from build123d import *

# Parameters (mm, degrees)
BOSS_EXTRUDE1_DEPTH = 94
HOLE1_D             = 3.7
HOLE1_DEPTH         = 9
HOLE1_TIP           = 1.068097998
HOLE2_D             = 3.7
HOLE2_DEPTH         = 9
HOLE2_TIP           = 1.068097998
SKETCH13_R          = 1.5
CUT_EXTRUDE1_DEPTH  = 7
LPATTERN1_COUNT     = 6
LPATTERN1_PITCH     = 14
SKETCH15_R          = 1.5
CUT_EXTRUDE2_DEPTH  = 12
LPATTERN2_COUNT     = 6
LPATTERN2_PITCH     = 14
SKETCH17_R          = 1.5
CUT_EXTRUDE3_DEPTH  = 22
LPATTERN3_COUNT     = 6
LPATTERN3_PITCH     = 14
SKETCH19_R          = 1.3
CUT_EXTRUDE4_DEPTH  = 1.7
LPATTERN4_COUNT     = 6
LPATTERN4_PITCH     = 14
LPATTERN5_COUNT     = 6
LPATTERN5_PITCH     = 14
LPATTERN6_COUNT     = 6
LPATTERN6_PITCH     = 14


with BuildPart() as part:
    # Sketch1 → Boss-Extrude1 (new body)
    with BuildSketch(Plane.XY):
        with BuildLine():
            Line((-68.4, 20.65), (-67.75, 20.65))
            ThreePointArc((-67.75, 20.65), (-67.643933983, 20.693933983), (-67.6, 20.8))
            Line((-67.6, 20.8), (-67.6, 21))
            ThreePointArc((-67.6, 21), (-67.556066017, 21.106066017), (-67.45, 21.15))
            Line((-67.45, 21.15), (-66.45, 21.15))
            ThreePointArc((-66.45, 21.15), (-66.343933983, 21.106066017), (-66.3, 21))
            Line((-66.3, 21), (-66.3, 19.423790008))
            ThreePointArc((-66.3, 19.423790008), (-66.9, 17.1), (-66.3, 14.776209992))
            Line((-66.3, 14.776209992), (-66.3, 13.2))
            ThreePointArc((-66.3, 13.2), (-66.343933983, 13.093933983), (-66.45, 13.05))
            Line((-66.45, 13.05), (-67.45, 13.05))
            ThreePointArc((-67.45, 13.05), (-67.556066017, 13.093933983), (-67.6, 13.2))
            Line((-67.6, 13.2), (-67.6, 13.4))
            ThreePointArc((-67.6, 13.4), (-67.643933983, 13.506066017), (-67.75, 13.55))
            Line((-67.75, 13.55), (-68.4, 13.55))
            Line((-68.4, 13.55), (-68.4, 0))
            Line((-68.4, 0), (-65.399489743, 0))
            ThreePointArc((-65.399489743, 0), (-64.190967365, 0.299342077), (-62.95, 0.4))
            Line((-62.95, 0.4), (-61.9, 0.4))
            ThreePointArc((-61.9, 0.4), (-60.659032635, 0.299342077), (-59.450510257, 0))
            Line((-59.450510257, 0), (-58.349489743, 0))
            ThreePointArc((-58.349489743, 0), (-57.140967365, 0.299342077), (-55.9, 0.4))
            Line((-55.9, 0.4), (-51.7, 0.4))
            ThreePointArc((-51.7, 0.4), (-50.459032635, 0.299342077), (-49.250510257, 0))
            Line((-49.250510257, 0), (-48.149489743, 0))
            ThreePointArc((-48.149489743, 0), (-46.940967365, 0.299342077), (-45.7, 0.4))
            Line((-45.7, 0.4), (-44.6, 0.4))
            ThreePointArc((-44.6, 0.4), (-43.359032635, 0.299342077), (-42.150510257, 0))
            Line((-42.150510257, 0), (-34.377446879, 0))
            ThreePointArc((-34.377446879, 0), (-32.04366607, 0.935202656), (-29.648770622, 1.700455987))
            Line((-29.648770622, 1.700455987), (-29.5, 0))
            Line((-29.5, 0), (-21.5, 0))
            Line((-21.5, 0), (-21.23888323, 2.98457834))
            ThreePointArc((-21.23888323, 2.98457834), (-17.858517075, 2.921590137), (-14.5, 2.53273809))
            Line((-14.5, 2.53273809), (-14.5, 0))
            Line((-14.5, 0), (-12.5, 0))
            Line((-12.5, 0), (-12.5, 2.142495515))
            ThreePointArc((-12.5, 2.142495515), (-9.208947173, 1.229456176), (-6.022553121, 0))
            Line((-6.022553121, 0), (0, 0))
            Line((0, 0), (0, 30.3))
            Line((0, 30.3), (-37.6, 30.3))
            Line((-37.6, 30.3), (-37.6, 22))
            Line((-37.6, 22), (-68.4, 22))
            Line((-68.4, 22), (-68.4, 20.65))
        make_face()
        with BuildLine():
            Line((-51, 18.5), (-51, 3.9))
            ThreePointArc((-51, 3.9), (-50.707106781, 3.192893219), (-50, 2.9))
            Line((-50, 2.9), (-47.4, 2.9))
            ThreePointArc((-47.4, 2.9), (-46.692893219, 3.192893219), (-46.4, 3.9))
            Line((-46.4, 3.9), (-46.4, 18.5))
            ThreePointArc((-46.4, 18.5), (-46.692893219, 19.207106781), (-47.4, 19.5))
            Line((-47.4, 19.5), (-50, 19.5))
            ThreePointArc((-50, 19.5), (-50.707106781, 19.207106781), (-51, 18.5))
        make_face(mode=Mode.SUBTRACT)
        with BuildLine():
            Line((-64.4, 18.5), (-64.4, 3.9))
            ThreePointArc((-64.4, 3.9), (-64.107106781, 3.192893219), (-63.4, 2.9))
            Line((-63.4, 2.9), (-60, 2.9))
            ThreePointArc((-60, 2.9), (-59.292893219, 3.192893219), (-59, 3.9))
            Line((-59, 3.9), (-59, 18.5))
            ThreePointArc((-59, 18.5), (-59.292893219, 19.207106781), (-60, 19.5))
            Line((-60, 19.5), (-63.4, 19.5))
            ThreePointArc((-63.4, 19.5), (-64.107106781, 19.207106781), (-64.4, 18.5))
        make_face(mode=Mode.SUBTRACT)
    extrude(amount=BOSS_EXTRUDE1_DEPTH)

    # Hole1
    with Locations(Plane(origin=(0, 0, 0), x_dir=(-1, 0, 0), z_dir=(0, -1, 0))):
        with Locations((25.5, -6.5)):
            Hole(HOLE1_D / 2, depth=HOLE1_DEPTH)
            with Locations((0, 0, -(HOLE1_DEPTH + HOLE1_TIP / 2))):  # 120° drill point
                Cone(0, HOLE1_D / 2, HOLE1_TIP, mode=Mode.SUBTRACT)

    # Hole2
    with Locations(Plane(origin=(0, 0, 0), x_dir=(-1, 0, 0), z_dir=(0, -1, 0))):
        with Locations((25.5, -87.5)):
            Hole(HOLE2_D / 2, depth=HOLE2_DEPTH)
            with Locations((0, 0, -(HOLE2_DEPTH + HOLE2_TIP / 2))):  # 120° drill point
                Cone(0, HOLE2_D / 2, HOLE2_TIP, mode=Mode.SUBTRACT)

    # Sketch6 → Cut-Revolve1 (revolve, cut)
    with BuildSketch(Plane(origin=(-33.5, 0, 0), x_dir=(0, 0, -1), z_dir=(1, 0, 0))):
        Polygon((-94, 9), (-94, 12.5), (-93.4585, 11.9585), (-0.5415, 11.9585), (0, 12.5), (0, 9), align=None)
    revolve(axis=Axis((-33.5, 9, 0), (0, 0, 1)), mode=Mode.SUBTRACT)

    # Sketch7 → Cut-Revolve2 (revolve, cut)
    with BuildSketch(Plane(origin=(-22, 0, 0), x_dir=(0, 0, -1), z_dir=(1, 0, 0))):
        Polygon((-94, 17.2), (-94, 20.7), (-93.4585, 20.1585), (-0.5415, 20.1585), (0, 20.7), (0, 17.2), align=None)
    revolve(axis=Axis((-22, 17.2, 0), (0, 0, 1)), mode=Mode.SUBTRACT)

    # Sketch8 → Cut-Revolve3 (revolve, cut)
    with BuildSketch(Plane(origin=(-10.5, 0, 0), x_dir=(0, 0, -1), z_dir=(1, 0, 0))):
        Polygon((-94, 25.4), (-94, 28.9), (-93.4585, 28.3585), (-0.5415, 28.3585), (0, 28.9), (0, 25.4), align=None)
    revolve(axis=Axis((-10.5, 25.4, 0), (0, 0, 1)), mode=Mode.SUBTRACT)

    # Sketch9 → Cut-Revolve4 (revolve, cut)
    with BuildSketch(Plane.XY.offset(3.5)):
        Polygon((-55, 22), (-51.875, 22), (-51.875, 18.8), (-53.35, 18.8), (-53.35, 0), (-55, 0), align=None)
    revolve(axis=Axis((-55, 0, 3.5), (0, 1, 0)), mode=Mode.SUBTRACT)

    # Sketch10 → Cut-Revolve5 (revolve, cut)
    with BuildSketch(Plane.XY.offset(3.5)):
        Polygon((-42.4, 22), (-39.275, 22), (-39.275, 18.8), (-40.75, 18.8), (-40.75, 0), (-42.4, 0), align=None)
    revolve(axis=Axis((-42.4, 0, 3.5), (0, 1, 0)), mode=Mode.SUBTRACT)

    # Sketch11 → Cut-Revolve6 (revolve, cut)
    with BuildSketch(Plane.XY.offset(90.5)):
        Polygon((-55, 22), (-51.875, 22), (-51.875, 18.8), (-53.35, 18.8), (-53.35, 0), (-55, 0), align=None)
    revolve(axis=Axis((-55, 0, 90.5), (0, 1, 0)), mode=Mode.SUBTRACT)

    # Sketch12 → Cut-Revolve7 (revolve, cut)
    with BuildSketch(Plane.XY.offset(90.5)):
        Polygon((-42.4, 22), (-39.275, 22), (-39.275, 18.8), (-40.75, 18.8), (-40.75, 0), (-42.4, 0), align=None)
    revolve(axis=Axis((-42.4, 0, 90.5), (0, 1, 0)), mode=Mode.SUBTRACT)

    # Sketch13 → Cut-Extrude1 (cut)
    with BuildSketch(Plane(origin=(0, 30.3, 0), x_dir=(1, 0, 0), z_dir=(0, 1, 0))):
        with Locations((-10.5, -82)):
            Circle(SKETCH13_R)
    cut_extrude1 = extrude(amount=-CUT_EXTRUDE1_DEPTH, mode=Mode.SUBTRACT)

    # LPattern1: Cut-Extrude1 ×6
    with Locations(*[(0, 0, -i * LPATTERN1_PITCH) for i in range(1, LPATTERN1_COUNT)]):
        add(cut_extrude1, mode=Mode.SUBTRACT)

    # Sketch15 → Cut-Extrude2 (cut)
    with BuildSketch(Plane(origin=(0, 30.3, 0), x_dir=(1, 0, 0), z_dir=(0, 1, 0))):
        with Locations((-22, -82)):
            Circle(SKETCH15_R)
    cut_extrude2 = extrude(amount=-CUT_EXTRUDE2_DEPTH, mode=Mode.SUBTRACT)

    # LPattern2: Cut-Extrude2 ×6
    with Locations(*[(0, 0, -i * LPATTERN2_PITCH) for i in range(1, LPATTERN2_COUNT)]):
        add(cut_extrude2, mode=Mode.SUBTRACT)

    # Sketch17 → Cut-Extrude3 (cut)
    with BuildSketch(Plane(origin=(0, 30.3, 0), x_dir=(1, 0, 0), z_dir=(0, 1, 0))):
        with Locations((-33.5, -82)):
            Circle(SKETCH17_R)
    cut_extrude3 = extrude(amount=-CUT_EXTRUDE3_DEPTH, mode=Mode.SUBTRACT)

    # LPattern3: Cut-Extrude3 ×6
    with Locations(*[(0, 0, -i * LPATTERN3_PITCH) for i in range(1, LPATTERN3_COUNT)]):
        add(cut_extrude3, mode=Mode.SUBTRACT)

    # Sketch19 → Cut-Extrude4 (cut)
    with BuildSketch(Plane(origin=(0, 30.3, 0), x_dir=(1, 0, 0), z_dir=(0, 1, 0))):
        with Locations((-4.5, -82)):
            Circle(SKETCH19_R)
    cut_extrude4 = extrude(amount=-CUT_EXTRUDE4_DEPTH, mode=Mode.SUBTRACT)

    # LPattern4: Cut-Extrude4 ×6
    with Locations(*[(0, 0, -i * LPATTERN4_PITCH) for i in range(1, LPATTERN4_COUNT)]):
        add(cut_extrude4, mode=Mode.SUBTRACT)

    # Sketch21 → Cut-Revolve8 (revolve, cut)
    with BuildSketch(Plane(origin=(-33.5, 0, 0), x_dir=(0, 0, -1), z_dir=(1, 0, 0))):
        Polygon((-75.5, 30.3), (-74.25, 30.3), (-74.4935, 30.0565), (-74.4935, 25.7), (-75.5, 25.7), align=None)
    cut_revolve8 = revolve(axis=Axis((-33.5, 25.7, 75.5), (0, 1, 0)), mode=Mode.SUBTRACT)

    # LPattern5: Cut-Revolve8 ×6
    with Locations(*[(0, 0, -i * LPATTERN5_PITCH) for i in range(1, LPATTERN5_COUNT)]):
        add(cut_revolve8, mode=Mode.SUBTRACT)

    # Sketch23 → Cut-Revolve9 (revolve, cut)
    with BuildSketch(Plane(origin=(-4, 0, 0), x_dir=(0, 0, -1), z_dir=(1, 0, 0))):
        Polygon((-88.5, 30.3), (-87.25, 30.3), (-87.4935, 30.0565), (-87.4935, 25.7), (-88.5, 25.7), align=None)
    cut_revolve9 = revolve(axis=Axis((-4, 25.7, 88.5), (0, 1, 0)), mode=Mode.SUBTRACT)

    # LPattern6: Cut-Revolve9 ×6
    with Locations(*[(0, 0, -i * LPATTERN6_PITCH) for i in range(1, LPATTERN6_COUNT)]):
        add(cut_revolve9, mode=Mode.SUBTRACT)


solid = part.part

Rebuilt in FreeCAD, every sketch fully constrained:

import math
import FreeCAD as App
import Part
import Sketcher
Q = App.Units.Quantity


def add_polygon(sketch, points):
    """Adds a closed chain of lines whose ends are joined by coincident constraints."""
    first, n = sketch.GeometryCount, len(points)
    for a, b in zip(points, points[1:] + points[:1]):
        sketch.addGeometry(Part.LineSegment(App.Vector(*a, 0), App.Vector(*b, 0)), False)
    for i in range(n):
        sketch.addConstraint(Sketcher.Constraint("Coincident", first + i, 2, first + (i + 1) % n, 1))

doc = App.newDocument("Part")
body = doc.addObject("PartDesign::Body", "Body")

# Sketch on XY plane
sketch1 = doc.addObject("Sketcher::SketchObject", "Sketch")
body.addObject(sketch1)
sketch1.AttachmentSupport = (doc.XY_Plane, [""])
sketch1.MapMode = "FlatFace"
sketch1.addGeometry([
    Part.LineSegment(App.Vector(-68.4, 20.65, 0), App.Vector(-67.75, 20.65, 0)),  # 0
    Part.ArcOfCircle(Part.Circle(App.Vector(-67.75, 20.8, 0), App.Vector(0, 0, 1), 0.15), math.radians(-90), math.radians(0)),  # 1
    Part.LineSegment(App.Vector(-67.6, 20.8, 0), App.Vector(-67.6, 21, 0)),  # 2
    Part.ArcOfCircle(Part.Circle(App.Vector(-67.45, 21, 0), App.Vector(0, 0, 1), 0.15), math.radians(90), math.radians(180)),  # 3
    Part.LineSegment(App.Vector(-67.45, 21.15, 0), App.Vector(-66.45, 21.15, 0)),  # 4
    Part.ArcOfCircle(Part.Circle(App.Vector(-66.45, 21, 0), App.Vector(0, 0, 1), 0.15), math.radians(0), math.radians(90)),  # 5
    Part.LineSegment(App.Vector(-66.3, 21, 0), App.Vector(-66.3, 19.42, 0)),  # 6
    Part.ArcOfCircle(Part.Circle(App.Vector(-62.1, 17.1, 0), App.Vector(0, 0, 1), 4.8), math.radians(151), math.radians(209)),  # 7
    Part.LineSegment(App.Vector(-66.3, 14.78, 0), App.Vector(-66.3, 13.2, 0)),  # 8
    Part.ArcOfCircle(Part.Circle(App.Vector(-66.45, 13.2, 0), App.Vector(0, 0, 1), 0.15), math.radians(-90), math.radians(0)),  # 9
    Part.LineSegment(App.Vector(-66.45, 13.05, 0), App.Vector(-67.45, 13.05, 0)),  # 10
    Part.ArcOfCircle(Part.Circle(App.Vector(-67.45, 13.2, 0), App.Vector(0, 0, 1), 0.15), math.radians(-180), math.radians(-90)),  # 11
    Part.LineSegment(App.Vector(-67.6, 13.2, 0), App.Vector(-67.6, 13.4, 0)),  # 12
    Part.ArcOfCircle(Part.Circle(App.Vector(-67.75, 13.4, 0), App.Vector(0, 0, 1), 0.15), math.radians(0), math.radians(90)),  # 13
    Part.LineSegment(App.Vector(-67.75, 13.55, 0), App.Vector(-68.4, 13.55, 0)),  # 14
    Part.LineSegment(App.Vector(-68.4, 13.55, 0), App.Vector(-68.4, 0, 0)),  # 15
    Part.LineSegment(App.Vector(-68.4, 0, 0), App.Vector(-65.4, 0, 0)),  # 16
    Part.ArcOfCircle(Part.Circle(App.Vector(-62.95, -7.3, 0), App.Vector(0, 0, 1), 7.7), math.radians(90), math.radians(108.55)),  # 17
    Part.LineSegment(App.Vector(-62.95, 0.4, 0), App.Vector(-61.9, 0.4, 0)),  # 18
    Part.ArcOfCircle(Part.Circle(App.Vector(-61.9, -7.3, 0), App.Vector(0, 0, 1), 7.7), math.radians(71.45), math.radians(90)),  # 19
    Part.LineSegment(App.Vector(-59.45, 0, 0), App.Vector(-58.35, 0, 0)),  # 20
    Part.ArcOfCircle(Part.Circle(App.Vector(-55.9, -7.3, 0), App.Vector(0, 0, 1), 7.7), math.radians(90), math.radians(108.55)),  # 21
    Part.LineSegment(App.Vector(-55.9, 0.4, 0), App.Vector(-51.7, 0.4, 0)),  # 22
    Part.ArcOfCircle(Part.Circle(App.Vector(-51.7, -7.3, 0), App.Vector(0, 0, 1), 7.7), math.radians(71.45), math.radians(90)),  # 23
    Part.LineSegment(App.Vector(-49.25, 0, 0), App.Vector(-48.15, 0, 0)),  # 24
    Part.ArcOfCircle(Part.Circle(App.Vector(-45.7, -7.3, 0), App.Vector(0, 0, 1), 7.7), math.radians(90), math.radians(108.55)),  # 25
    Part.LineSegment(App.Vector(-45.7, 0.4, 0), App.Vector(-44.6, 0.4, 0)),  # 26
    Part.ArcOfCircle(Part.Circle(App.Vector(-44.6, -7.3, 0), App.Vector(0, 0, 1), 7.7), math.radians(71.45), math.radians(90)),  # 27
    Part.LineSegment(App.Vector(-42.15, 0, 0), App.Vector(-34.38, 0, 0)),  # 28
    Part.ArcOfCircle(Part.Circle(App.Vector(-20.2, -32, 0), App.Vector(0, 0, 1), 35), math.radians(105.66), math.radians(113.9)),  # 29
    Part.LineSegment(App.Vector(-29.65, 1.7, 0), App.Vector(-29.5, 0, 0)),  # 30
    Part.LineSegment(App.Vector(-29.5, 0, 0), App.Vector(-21.5, 0, 0)),  # 31
    Part.LineSegment(App.Vector(-21.5, 0, 0), App.Vector(-21.24, 2.98, 0)),  # 32
    Part.ArcOfCircle(Part.Circle(App.Vector(-20.2, -32, 0), App.Vector(0, 0, 1), 35), math.radians(80.63), math.radians(91.7)),  # 33
    Part.LineSegment(App.Vector(-14.5, 2.53, 0), App.Vector(-14.5, 0, 0)),  # 34
    Part.LineSegment(App.Vector(-14.5, 0, 0), App.Vector(-12.5, 0, 0)),  # 35
    Part.LineSegment(App.Vector(-12.5, 0, 0), App.Vector(-12.5, 2.14, 0)),  # 36
    Part.ArcOfCircle(Part.Circle(App.Vector(-20.2, -32, 0), App.Vector(0, 0, 1), 35), math.radians(66.1), math.radians(77.29)),  # 37
    Part.LineSegment(App.Vector(-6.02, 0, 0), App.Vector(0, 0, 0)),  # 38
    Part.LineSegment(App.Vector(0, 0, 0), App.Vector(0, 30.3, 0)),  # 39
    Part.LineSegment(App.Vector(0, 30.3, 0), App.Vector(-37.6, 30.3, 0)),  # 40
    Part.LineSegment(App.Vector(-37.6, 30.3, 0), App.Vector(-37.6, 22, 0)),  # 41
    Part.LineSegment(App.Vector(-37.6, 22, 0), App.Vector(-68.4, 22, 0)),  # 42
    Part.LineSegment(App.Vector(-68.4, 22, 0), App.Vector(-68.4, 20.65, 0)),  # 43
    Part.LineSegment(App.Vector(-64.4, 3.9, 0), App.Vector(-64.4, 18.5, 0)),  # 44
    Part.ArcOfCircle(Part.Circle(App.Vector(-63.4, 18.5, 0), App.Vector(0, 0, 1), 1), math.radians(90), math.radians(180)),  # 45
    Part.LineSegment(App.Vector(-63.4, 19.5, 0), App.Vector(-60, 19.5, 0)),  # 46
    Part.ArcOfCircle(Part.Circle(App.Vector(-60, 18.5, 0), App.Vector(0, 0, 1), 1), math.radians(0), math.radians(90)),  # 47
    Part.LineSegment(App.Vector(-59, 18.5, 0), App.Vector(-59, 3.9, 0)),  # 48
    Part.ArcOfCircle(Part.Circle(App.Vector(-60, 3.9, 0), App.Vector(0, 0, 1), 1), math.radians(-90), math.radians(0)),  # 49
    Part.LineSegment(App.Vector(-60, 2.9, 0), App.Vector(-63.4, 2.9, 0)),  # 50
    Part.ArcOfCircle(Part.Circle(App.Vector(-63.4, 3.9, 0), App.Vector(0, 0, 1), 1), math.radians(-180), math.radians(-90)),  # 51
    Part.LineSegment(App.Vector(-51, 3.9, 0), App.Vector(-51, 18.5, 0)),  # 52
    Part.ArcOfCircle(Part.Circle(App.Vector(-50, 18.5, 0), App.Vector(0, 0, 1), 1), math.radians(90), math.radians(180)),  # 53
    Part.LineSegment(App.Vector(-50, 19.5, 0), App.Vector(-47.4, 19.5, 0)),  # 54
    Part.ArcOfCircle(Part.Circle(App.Vector(-47.4, 18.5, 0), App.Vector(0, 0, 1), 1), math.radians(0), math.radians(90)),  # 55
    Part.LineSegment(App.Vector(-46.4, 18.5, 0), App.Vector(-46.4, 3.9, 0)),  # 56
    Part.ArcOfCircle(Part.Circle(App.Vector(-47.4, 3.9, 0), App.Vector(0, 0, 1), 1), math.radians(-90), math.radians(0)),  # 57
    Part.LineSegment(App.Vector(-47.4, 2.9, 0), App.Vector(-50, 2.9, 0)),  # 58
    Part.ArcOfCircle(Part.Circle(App.Vector(-50, 3.9, 0), App.Vector(0, 0, 1), 1), math.radians(-180), math.radians(-90)),  # 59
], False)
sketch1.addConstraint([
    Sketcher.Constraint("Tangent", 0, 2, 1, 1),
    Sketcher.Constraint("Tangent", 1, 2, 2, 1),
    Sketcher.Constraint("Tangent", 2, 2, 3, 2),
    Sketcher.Constraint("Tangent", 3, 1, 4, 1),
    Sketcher.Constraint("Tangent", 4, 2, 5, 2),
    Sketcher.Constraint("Tangent", 5, 1, 6, 1),
    Sketcher.Constraint("Coincident", 6, 2, 7, 1),
    Sketcher.Constraint("Coincident", 7, 2, 8, 1),
    Sketcher.Constraint("Tangent", 8, 2, 9, 2),
    Sketcher.Constraint("Tangent", 9, 1, 10, 1),
    Sketcher.Constraint("Tangent", 10, 2, 11, 2),
    Sketcher.Constraint("Tangent", 11, 1, 12, 1),
    Sketcher.Constraint("Tangent", 12, 2, 13, 1),
    Sketcher.Constraint("Tangent", 13, 2, 14, 1),
    Sketcher.Constraint("Coincident", 14, 2, 15, 1),
    Sketcher.Constraint("Coincident", 15, 2, 16, 1),
    Sketcher.Constraint("Coincident", 16, 2, 17, 2),
    Sketcher.Constraint("Tangent", 17, 1, 18, 1),
    Sketcher.Constraint("Tangent", 18, 2, 19, 2),
    Sketcher.Constraint("Coincident", 19, 1, 20, 1),
    Sketcher.Constraint("Coincident", 20, 2, 21, 2),
    Sketcher.Constraint("Tangent", 21, 1, 22, 1),
    Sketcher.Constraint("Tangent", 22, 2, 23, 2),
    Sketcher.Constraint("Coincident", 23, 1, 24, 1),
    Sketcher.Constraint("Coincident", 24, 2, 25, 2),
    Sketcher.Constraint("Tangent", 25, 1, 26, 1),
    Sketcher.Constraint("Tangent", 26, 2, 27, 2),
    Sketcher.Constraint("Coincident", 27, 1, 28, 1),
    Sketcher.Constraint("Coincident", 28, 2, 29, 2),
    Sketcher.Constraint("Coincident", 29, 1, 30, 1),
    Sketcher.Constraint("Coincident", 30, 2, 31, 1),
    Sketcher.Constraint("Coincident", 31, 2, 32, 1),
    Sketcher.Constraint("Coincident", 32, 2, 33, 2),
    Sketcher.Constraint("Coincident", 33, 1, 34, 1),
    Sketcher.Constraint("Coincident", 34, 2, 35, 1),
    Sketcher.Constraint("Coincident", 35, 2, 36, 1),
    Sketcher.Constraint("Coincident", 36, 2, 37, 2),
    Sketcher.Constraint("Coincident", 37, 1, 38, 1),
    Sketcher.Constraint("Coincident", 38, 2, 39, 1),
    Sketcher.Constraint("Coincident", 39, 2, 40, 1),
    Sketcher.Constraint("Coincident", 40, 2, 41, 1),
    Sketcher.Constraint("Coincident", 41, 2, 42, 1),
    Sketcher.Constraint("Coincident", 42, 2, 43, 1),
    Sketcher.Constraint("Coincident", 43, 2, 0, 1),
    Sketcher.Constraint("Tangent", 44, 2, 45, 2),
    Sketcher.Constraint("Tangent", 45, 1, 46, 1),
    Sketcher.Constraint("Tangent", 46, 2, 47, 2),
    Sketcher.Constraint("Tangent", 47, 1, 48, 1),
    Sketcher.Constraint("Tangent", 48, 2, 49, 2),
    Sketcher.Constraint("Tangent", 49, 1, 50, 1),
    Sketcher.Constraint("Tangent", 50, 2, 51, 2),
    Sketcher.Constraint("Tangent", 51, 1, 44, 1),
    Sketcher.Constraint("Tangent", 52, 2, 53, 2),
    Sketcher.Constraint("Tangent", 53, 1, 54, 1),
    Sketcher.Constraint("Tangent", 54, 2, 55, 2),
    Sketcher.Constraint("Tangent", 55, 1, 56, 1),
    Sketcher.Constraint("Tangent", 56, 2, 57, 2),
    Sketcher.Constraint("Tangent", 57, 1, 58, 1),
    Sketcher.Constraint("Tangent", 58, 2, 59, 2),
    Sketcher.Constraint("Tangent", 59, 1, 52, 1),
    Sketcher.Constraint("Horizontal", 0),
    Sketcher.Constraint("Vertical", 2),
    Sketcher.Constraint("Horizontal", 4),
    Sketcher.Constraint("Vertical", 6),
    Sketcher.Constraint("Vertical", 8),
    Sketcher.Constraint("Horizontal", 10),
    Sketcher.Constraint("Vertical", 12),
    Sketcher.Constraint("Horizontal", 14),
    Sketcher.Constraint("Vertical", 15),
    Sketcher.Constraint("Horizontal", 16),
    Sketcher.Constraint("Horizontal", 18),
    Sketcher.Constraint("Horizontal", 20),
    Sketcher.Constraint("Horizontal", 22),
    Sketcher.Constraint("Horizontal", 24),
    Sketcher.Constraint("Horizontal", 26),
    Sketcher.Constraint("Horizontal", 28),
    Sketcher.Constraint("Horizontal", 31),
    Sketcher.Constraint("Vertical", 34),
    Sketcher.Constraint("Horizontal", 35),
    Sketcher.Constraint("Vertical", 36),
    Sketcher.Constraint("Horizontal", 38),
    Sketcher.Constraint("Vertical", 39),
    Sketcher.Constraint("Horizontal", 40),
    Sketcher.Constraint("Vertical", 41),
    Sketcher.Constraint("Horizontal", 42),
    Sketcher.Constraint("Vertical", 43),
    Sketcher.Constraint("Vertical", 44),
    Sketcher.Constraint("Horizontal", 46),
    Sketcher.Constraint("Vertical", 48),
    Sketcher.Constraint("Horizontal", 50),
    Sketcher.Constraint("Vertical", 52),
    Sketcher.Constraint("Horizontal", 54),
    Sketcher.Constraint("Vertical", 56),
    Sketcher.Constraint("Horizontal", 58),
    Sketcher.Constraint("Coincident", 38, 2, -1, 1),
    Sketcher.Constraint("Coincident", 33, 3, 29, 3),
    Sketcher.Constraint("Coincident", 37, 3, 29, 3),
    Sketcher.Constraint("Equal", 1, 3),
    Sketcher.Constraint("Equal", 3, 5),
    Sketcher.Constraint("Equal", 5, 9),
    Sketcher.Constraint("Equal", 9, 11),
    Sketcher.Constraint("Equal", 11, 13),
    Sketcher.Constraint("Equal", 17, 19),
    Sketcher.Constraint("Equal", 19, 21),
    Sketcher.Constraint("Equal", 21, 23),
    Sketcher.Constraint("Equal", 23, 25),
    Sketcher.Constraint("Equal", 25, 27),
    Sketcher.Constraint("Equal", 29, 33),
    Sketcher.Constraint("Equal", 33, 37),
    Sketcher.Constraint("Equal", 45, 47),
    Sketcher.Constraint("Equal", 47, 49),
    Sketcher.Constraint("Equal", 49, 51),
    Sketcher.Constraint("Equal", 51, 53),
    Sketcher.Constraint("Equal", 53, 55),
    Sketcher.Constraint("Equal", 55, 57),
    Sketcher.Constraint("Equal", 57, 59),
    Sketcher.Constraint("PointOnObject", 15, 2, -1),
    Sketcher.Constraint("PointOnObject", 19, 1, -1),
    Sketcher.Constraint("PointOnObject", 23, 1, -1),
    Sketcher.Constraint("PointOnObject", 27, 1, -1),
    Sketcher.Constraint("PointOnObject", 30, 2, -1),
    Sketcher.Constraint("PointOnObject", 34, 2, -1),
    Sketcher.Constraint("Horizontal", 19, 3, 21, 3),
    Sketcher.Constraint("Horizontal", 23, 3, 25, 3),
    Sketcher.Constraint("Horizontal", 47, 3, 53, 3),
    Sketcher.Constraint("Horizontal", 51, 3, 57, 3),
    Sketcher.Constraint("Vertical", 5, 3, 9, 3),
    Sketcher.Constraint("Vertical", 3, 3, 11, 3),
    Sketcher.Constraint("Vertical", 15, 2, 42, 2),
    Sketcher.Constraint("Equal", 20, 24),
    Sketcher.Constraint("Equal", 6, 8),
    Sketcher.Constraint("Equal", 2, 12),
    Sketcher.Constraint("Radius", 29, 35.0),
    Sketcher.Constraint("Radius", 45, 1.0),
    Sketcher.Constraint("Radius", 7, 4.8),
    Sketcher.Constraint("Radius", 17, 7.7),
    Sketcher.Constraint("DistanceX", 4, 1, 4, 2, 1.0),
    Sketcher.Constraint("DistanceX", 31, 1, 31, 2, 8.0),
    Sketcher.Constraint("DistanceX", 35, 1, 35, 2, 2.0),
    Sketcher.Constraint("Angle", 30, Q("-85 deg")),
    Sketcher.Constraint("Angle", 32, Q("85 deg")),
    Sketcher.Constraint("Radius", 1, 0.15),
    Sketcher.Constraint("DistanceX", 22, 1, 22, 2, 4.2),
    Sketcher.Constraint("DistanceX", 26, 1, 26, 2, 1.1),
    Sketcher.Constraint("DistanceX", 40, 2, 40, 1, 37.6),
    Sketcher.Constraint("DistanceX", 42, 2, 42, 1, 30.8),
    Sketcher.Constraint("DistanceX", 46, 1, 46, 2, 3.4),
    Sketcher.Constraint("DistanceX", 54, 1, 54, 2, 2.6),
    Sketcher.Constraint("DistanceY", 2, 1, 2, 2, 0.2),
    Sketcher.Constraint("DistanceY", 39, 1, 39, 2, 30.3),
    Sketcher.Constraint("DistanceY", 41, 2, 41, 1, 8.3),
    Sketcher.Constraint("DistanceY", 44, 1, 44, 2, 14.6),
    Sketcher.Constraint("DistanceY", -1, 1, 3, 3, 21.0),
    Sketcher.Constraint("DistanceY", 29, 3, -1, 1, 32.0),
    Sketcher.Constraint("DistanceX", 47, 3, -1, 1, 60.0),
    Sketcher.Constraint("DistanceX", 53, 3, -1, 1, 50.0),
    Sketcher.Constraint("DistanceX", 0, 1, 0, 2, 0.65),
    Sketcher.Constraint("DistanceX", 18, 1, 18, 2, 1.05),
    Sketcher.Constraint("DistanceY", 15, 2, 15, 1, 13.55),
    Sketcher.Constraint("DistanceX", 7, 3, -1, 1, 62.1),
    Sketcher.Constraint("DistanceY", 17, 3, -1, 1, 7.3),
    Sketcher.Constraint("DistanceX", 19, 3, -1, 1, 61.9),
    Sketcher.Constraint("DistanceX", 21, 3, -1, 1, 55.9),
    Sketcher.Constraint("DistanceX", 29, 3, -1, 1, 20.2),
    Sketcher.Constraint("DistanceY", -1, 1, 45, 3, 18.5),
    Sketcher.Constraint("DistanceX", 30, 2, -1, 1, 29.5),
    Sketcher.Constraint("DistanceX", 33, 1, -1, 1, 14.5),
])
pad1 = doc.addObject("PartDesign::Pad", "Pad")
body.addObject(pad1)
pad1.Profile = sketch1
pad1.Length = 94

# Sketch on XZ plane
sketch2 = doc.addObject("Sketcher::SketchObject", "Sketch001")
body.addObject(sketch2)
sketch2.AttachmentSupport = (doc.XZ_Plane, [""])
sketch2.MapMode = "FlatFace"
sketch2.addGeometry(Part.Circle(App.Vector(-25.5, 6.5, 0), App.Vector(0, 0, 1), 1.9), False)
sketch2.addConstraint([
    Sketcher.Constraint("Diameter", 0, 3.7),
    Sketcher.Constraint("DistanceX", 0, 3, -1, 1, 25.5),
    Sketcher.Constraint("DistanceY", -1, 1, 0, 3, 6.5),
])
doc.recompute()
hole = doc.addObject("PartDesign::Hole", "Hole")
body.addObject(hole)
hole.Profile = sketch2
hole.ThreadType = "None"
hole.Diameter = 3.7
hole.DepthType = "Dimension"
hole.Depth = 9
hole.DrillPoint = "Angled"
hole.DrillPointAngle = 120

# Sketch on XZ plane
sketch3 = doc.addObject("Sketcher::SketchObject", "Sketch002")
body.addObject(sketch3)
sketch3.AttachmentSupport = (doc.XZ_Plane, [""])
sketch3.MapMode = "FlatFace"
sketch3.addGeometry(Part.Circle(App.Vector(-25.5, 87.5, 0), App.Vector(0, 0, 1), 1.9), False)
sketch3.addConstraint([
    Sketcher.Constraint("Diameter", 0, 3.7),
    Sketcher.Constraint("DistanceX", 0, 3, -1, 1, 25.5),
    Sketcher.Constraint("DistanceY", -1, 1, 0, 3, 87.5),
])
doc.recompute()
hole2 = doc.addObject("PartDesign::Hole", "Hole001")
body.addObject(hole2)
hole2.Profile = sketch3
hole2.ThreadType = "None"
hole2.Diameter = 3.7
hole2.DepthType = "Dimension"
hole2.Depth = 9
hole2.DrillPoint = "Angled"
hole2.DrillPointAngle = 120

# Sketch on YZ plane
sketch4 = doc.addObject("Sketcher::SketchObject", "Sketch003")
body.addObject(sketch4)
sketch4.AttachmentSupport = (doc.YZ_Plane, [""])
sketch4.MapMode = "FlatFace"
sketch4.AttachmentOffset = App.Placement(App.Vector(0, 0, -33.5), App.Rotation())
add_polygon(sketch4, [(12.5, 94), (9, 94), (9, 0), (12.5, 0), (12, 0.5), (12, 93.5)])  # lines 0-5
sketch4.addGeometry(Part.LineSegment(App.Vector(9, 0, 0), App.Vector(9, 94, 0)), True)  # axis
sketch4.addConstraint([
    Sketcher.Constraint("Horizontal", 0),
    Sketcher.Constraint("Vertical", 1),
    Sketcher.Constraint("Horizontal", 2),
    Sketcher.Constraint("Vertical", 4),
    Sketcher.Constraint("Vertical", 6),
    Sketcher.Constraint("Coincident", 6, 1, 1, 2),
    Sketcher.Constraint("PointOnObject", 1, 2, -1),
    Sketcher.Constraint("Perpendicular", 3, 5),
    Sketcher.Constraint("Horizontal", 5, 2, 6, 2),
    Sketcher.Constraint("Vertical", 2, 2, 5, 2),
    Sketcher.Constraint("Equal", 3, 5),
    Sketcher.Constraint("DistanceY", 1, 2, 1, 1, 94.0),
    Sketcher.Constraint("DistanceX", 0, 2, 0, 1, 3.5),
    Sketcher.Constraint("DistanceX", -1, 1, 0, 2, 9.0),
    Sketcher.Constraint("DistanceY", 4, 1, 4, 2, 92.917),
])
groove = doc.addObject("PartDesign::Groove", "Groove")
body.addObject(groove)
groove.Profile = sketch4
groove.ReferenceAxis = (sketch4, ["Axis0"])
groove.Angle = 360

# Sketch on YZ plane
sketch5 = doc.addObject("Sketcher::SketchObject", "Sketch004")
body.addObject(sketch5)
sketch5.AttachmentSupport = (doc.YZ_Plane, [""])
sketch5.MapMode = "FlatFace"
sketch5.AttachmentOffset = App.Placement(App.Vector(0, 0, -22), App.Rotation())
add_polygon(sketch5, [(20.7, 94), (17.2, 94), (17.2, 0), (20.7, 0), (20.2, 0.5), (20.2, 93.5)])  # lines 0-5
sketch5.addGeometry(Part.LineSegment(App.Vector(17.2, 0, 0), App.Vector(17.2, 94, 0)), True)  # axis
sketch5.addConstraint([
    Sketcher.Constraint("Horizontal", 0),
    Sketcher.Constraint("Vertical", 1),
    Sketcher.Constraint("Horizontal", 2),
    Sketcher.Constraint("Vertical", 4),
    Sketcher.Constraint("Vertical", 6),
    Sketcher.Constraint("Coincident", 6, 1, 1, 2),
    Sketcher.Constraint("PointOnObject", 1, 2, -1),
    Sketcher.Constraint("Perpendicular", 3, 5),
    Sketcher.Constraint("Horizontal", 5, 2, 6, 2),
    Sketcher.Constraint("Vertical", 2, 2, 5, 2),
    Sketcher.Constraint("Equal", 3, 5),
    Sketcher.Constraint("DistanceY", 1, 2, 1, 1, 94.0),
    Sketcher.Constraint("DistanceX", 0, 2, 0, 1, 3.5),
    Sketcher.Constraint("DistanceX", -1, 1, 0, 2, 17.2),
    Sketcher.Constraint("DistanceY", 4, 1, 4, 2, 92.917),
])
groove2 = doc.addObject("PartDesign::Groove", "Groove001")
body.addObject(groove2)
groove2.Profile = sketch5
groove2.ReferenceAxis = (sketch5, ["Axis0"])
groove2.Angle = 360

# Sketch on YZ plane
sketch6 = doc.addObject("Sketcher::SketchObject", "Sketch005")
body.addObject(sketch6)
sketch6.AttachmentSupport = (doc.YZ_Plane, [""])
sketch6.MapMode = "FlatFace"
sketch6.AttachmentOffset = App.Placement(App.Vector(0, 0, -10.5), App.Rotation())
add_polygon(sketch6, [(28.9, 94), (25.4, 94), (25.4, 0), (28.9, 0), (28.4, 0.5), (28.4, 93.5)])  # lines 0-5
sketch6.addGeometry(Part.LineSegment(App.Vector(25.4, 0, 0), App.Vector(25.4, 94, 0)), True)  # axis
sketch6.addConstraint([
    Sketcher.Constraint("Horizontal", 0),
    Sketcher.Constraint("Vertical", 1),
    Sketcher.Constraint("Horizontal", 2),
    Sketcher.Constraint("Vertical", 4),
    Sketcher.Constraint("Vertical", 6),
    Sketcher.Constraint("Coincident", 6, 1, 1, 2),
    Sketcher.Constraint("PointOnObject", 1, 2, -1),
    Sketcher.Constraint("Perpendicular", 3, 5),
    Sketcher.Constraint("Horizontal", 5, 2, 6, 2),
    Sketcher.Constraint("Vertical", 2, 2, 5, 2),
    Sketcher.Constraint("Equal", 3, 5),
    Sketcher.Constraint("DistanceY", 1, 2, 1, 1, 94.0),
    Sketcher.Constraint("DistanceX", 0, 2, 0, 1, 3.5),
    Sketcher.Constraint("DistanceX", -1, 1, 0, 2, 25.4),
    Sketcher.Constraint("DistanceY", 4, 1, 4, 2, 92.917),
])
groove3 = doc.addObject("PartDesign::Groove", "Groove002")
body.addObject(groove3)
groove3.Profile = sketch6
groove3.ReferenceAxis = (sketch6, ["Axis0"])
groove3.Angle = 360

# Sketch on XY plane
sketch7 = doc.addObject("Sketcher::SketchObject", "Sketch006")
body.addObject(sketch7)
sketch7.AttachmentSupport = (doc.XY_Plane, [""])
sketch7.MapMode = "FlatFace"
sketch7.AttachmentOffset = App.Placement(App.Vector(0, 0, 3.5), App.Rotation())
add_polygon(sketch7, [(-51.9, 22), (-55, 22), (-55, 0), (-53.4, 0), (-53.4, 18.8), (-51.9, 18.8)])  # lines 0-5
sketch7.addGeometry(Part.LineSegment(App.Vector(-55, 0, 0), App.Vector(-55, 22, 0)), True)  # axis
sketch7.addConstraint([
    Sketcher.Constraint("Horizontal", 0),
    Sketcher.Constraint("Vertical", 1),
    Sketcher.Constraint("Horizontal", 2),
    Sketcher.Constraint("Vertical", 3),
    Sketcher.Constraint("Horizontal", 4),
    Sketcher.Constraint("Vertical", 5),
    Sketcher.Constraint("Vertical", 6),
    Sketcher.Constraint("Coincident", 6, 1, 1, 2),
    Sketcher.Constraint("PointOnObject", 1, 2, -1),
    Sketcher.Constraint("Horizontal", 5, 2, 6, 2),
    Sketcher.Constraint("DistanceY", 1, 2, 1, 1, 22.0),
    Sketcher.Constraint("DistanceY", 3, 1, 3, 2, 18.8),
    Sketcher.Constraint("DistanceX", 0, 2, -1, 1, 55.0),
    Sketcher.Constraint("DistanceX", 2, 1, 2, 2, 1.65),
    Sketcher.Constraint("DistanceX", 0, 2, 0, 1, 3.125),
])
groove4 = doc.addObject("PartDesign::Groove", "Groove003")
body.addObject(groove4)
groove4.Profile = sketch7
groove4.ReferenceAxis = (sketch7, ["Axis0"])
groove4.Angle = 360

# Sketch on XY plane
sketch8 = doc.addObject("Sketcher::SketchObject", "Sketch007")
body.addObject(sketch8)
sketch8.AttachmentSupport = (doc.XY_Plane, [""])
sketch8.MapMode = "FlatFace"
sketch8.AttachmentOffset = App.Placement(App.Vector(0, 0, 3.5), App.Rotation())
add_polygon(sketch8, [(-39.3, 22), (-42.4, 22), (-42.4, 0), (-40.8, 0), (-40.8, 18.8), (-39.3, 18.8)])  # lines 0-5
sketch8.addGeometry(Part.LineSegment(App.Vector(-42.4, 0, 0), App.Vector(-42.4, 22, 0)), True)  # axis
sketch8.addConstraint([
    Sketcher.Constraint("Horizontal", 0),
    Sketcher.Constraint("Vertical", 1),
    Sketcher.Constraint("Horizontal", 2),
    Sketcher.Constraint("Vertical", 3),
    Sketcher.Constraint("Horizontal", 4),
    Sketcher.Constraint("Vertical", 5),
    Sketcher.Constraint("Vertical", 6),
    Sketcher.Constraint("Coincident", 6, 1, 1, 2),
    Sketcher.Constraint("PointOnObject", 1, 2, -1),
    Sketcher.Constraint("Horizontal", 5, 2, 6, 2),
    Sketcher.Constraint("DistanceY", 1, 2, 1, 1, 22.0),
    Sketcher.Constraint("DistanceY", 3, 1, 3, 2, 18.8),
    Sketcher.Constraint("DistanceX", 2, 1, 2, 2, 1.65),
    Sketcher.Constraint("DistanceX", 0, 2, -1, 1, 42.4),
    Sketcher.Constraint("DistanceX", 0, 2, 0, 1, 3.125),
])
groove5 = doc.addObject("PartDesign::Groove", "Groove004")
body.addObject(groove5)
groove5.Profile = sketch8
groove5.ReferenceAxis = (sketch8, ["Axis0"])
groove5.Angle = 360

# Sketch on XY plane
sketch9 = doc.addObject("Sketcher::SketchObject", "Sketch008")
body.addObject(sketch9)
sketch9.AttachmentSupport = (doc.XY_Plane, [""])
sketch9.MapMode = "FlatFace"
sketch9.AttachmentOffset = App.Placement(App.Vector(0, 0, 90.5), App.Rotation())
add_polygon(sketch9, [(-51.9, 22), (-55, 22), (-55, 0), (-53.4, 0), (-53.4, 18.8), (-51.9, 18.8)])  # lines 0-5
sketch9.addGeometry(Part.LineSegment(App.Vector(-55, 0, 0), App.Vector(-55, 22, 0)), True)  # axis
sketch9.addConstraint([
    Sketcher.Constraint("Horizontal", 0),
    Sketcher.Constraint("Vertical", 1),
    Sketcher.Constraint("Horizontal", 2),
    Sketcher.Constraint("Vertical", 3),
    Sketcher.Constraint("Horizontal", 4),
    Sketcher.Constraint("Vertical", 5),
    Sketcher.Constraint("Vertical", 6),
    Sketcher.Constraint("Coincident", 6, 1, 1, 2),
    Sketcher.Constraint("PointOnObject", 1, 2, -1),
    Sketcher.Constraint("Horizontal", 5, 2, 6, 2),
    Sketcher.Constraint("DistanceY", 1, 2, 1, 1, 22.0),
    Sketcher.Constraint("DistanceY", 3, 1, 3, 2, 18.8),
    Sketcher.Constraint("DistanceX", 0, 2, -1, 1, 55.0),
    Sketcher.Constraint("DistanceX", 2, 1, 2, 2, 1.65),
    Sketcher.Constraint("DistanceX", 0, 2, 0, 1, 3.125),
])
groove6 = doc.addObject("PartDesign::Groove", "Groove005")
body.addObject(groove6)
groove6.Profile = sketch9
groove6.ReferenceAxis = (sketch9, ["Axis0"])
groove6.Angle = 360

# Sketch on XY plane
sketch10 = doc.addObject("Sketcher::SketchObject", "Sketch009")
body.addObject(sketch10)
sketch10.AttachmentSupport = (doc.XY_Plane, [""])
sketch10.MapMode = "FlatFace"
sketch10.AttachmentOffset = App.Placement(App.Vector(0, 0, 90.5), App.Rotation())
add_polygon(sketch10, [(-39.3, 22), (-42.4, 22), (-42.4, 0), (-40.8, 0), (-40.8, 18.8), (-39.3, 18.8)])  # lines 0-5
sketch10.addGeometry(Part.LineSegment(App.Vector(-42.4, 0, 0), App.Vector(-42.4, 22, 0)), True)  # axis
sketch10.addConstraint([
    Sketcher.Constraint("Horizontal", 0),
    Sketcher.Constraint("Vertical", 1),
    Sketcher.Constraint("Horizontal", 2),
    Sketcher.Constraint("Vertical", 3),
    Sketcher.Constraint("Horizontal", 4),
    Sketcher.Constraint("Vertical", 5),
    Sketcher.Constraint("Vertical", 6),
    Sketcher.Constraint("Coincident", 6, 1, 1, 2),
    Sketcher.Constraint("PointOnObject", 1, 2, -1),
    Sketcher.Constraint("Horizontal", 5, 2, 6, 2),
    Sketcher.Constraint("DistanceY", 1, 2, 1, 1, 22.0),
    Sketcher.Constraint("DistanceY", 3, 1, 3, 2, 18.8),
    Sketcher.Constraint("DistanceX", 2, 1, 2, 2, 1.65),
    Sketcher.Constraint("DistanceX", 0, 2, -1, 1, 42.4),
    Sketcher.Constraint("DistanceX", 0, 2, 0, 1, 3.125),
])
groove7 = doc.addObject("PartDesign::Groove", "Groove006")
body.addObject(groove7)
groove7.Profile = sketch10
groove7.ReferenceAxis = (sketch10, ["Axis0"])
groove7.Angle = 360

# Sketch on XZ plane
sketch11 = doc.addObject("Sketcher::SketchObject", "Sketch010")
body.addObject(sketch11)
sketch11.AttachmentSupport = (doc.XZ_Plane, [""])
sketch11.MapMode = "FlatFace"
sketch11.AttachmentOffset = App.Placement(App.Vector(0, 0, -30.3), App.Rotation())
sketch11.addGeometry(Part.Circle(App.Vector(-10.5, 82, 0), App.Vector(0, 0, 1), 1.5), False)
sketch11.addConstraint([
    Sketcher.Constraint("Diameter", 0, 3.0),
    Sketcher.Constraint("DistanceY", -1, 1, 0, 3, 82.0),
    Sketcher.Constraint("DistanceX", 0, 3, -1, 1, 10.5),
])
pocket1 = doc.addObject("PartDesign::Pocket", "Pocket")
body.addObject(pocket1)
pocket1.Profile = sketch11
pocket1.Length = 7
pocket1.Reversed = True
doc.recompute()

linearpattern = doc.addObject("PartDesign::LinearPattern", "LinearPattern")
body.addObject(linearpattern)
linearpattern.Originals = [pocket1]
linearpattern.Direction = (doc.Z_Axis, [""])
linearpattern.Mode = "offset"
linearpattern.Offset = 14
linearpattern.Occurrences = 6
linearpattern.Reversed = True
body.Tip = linearpattern

# Sketch on XZ plane
sketch12 = doc.addObject("Sketcher::SketchObject", "Sketch011")
body.addObject(sketch12)
sketch12.AttachmentSupport = (doc.XZ_Plane, [""])
sketch12.MapMode = "FlatFace"
sketch12.AttachmentOffset = App.Placement(App.Vector(0, 0, -30.3), App.Rotation())
sketch12.addGeometry(Part.Circle(App.Vector(-22, 82, 0), App.Vector(0, 0, 1), 1.5), False)
sketch12.addConstraint([
    Sketcher.Constraint("Diameter", 0, 3.0),
    Sketcher.Constraint("DistanceX", 0, 3, -1, 1, 22.0),
    Sketcher.Constraint("DistanceY", -1, 1, 0, 3, 82.0),
])
pocket2 = doc.addObject("PartDesign::Pocket", "Pocket001")
body.addObject(pocket2)
pocket2.Profile = sketch12
pocket2.Length = 12
pocket2.Reversed = True
doc.recompute()

linearpattern2 = doc.addObject("PartDesign::LinearPattern", "LinearPattern001")
body.addObject(linearpattern2)
linearpattern2.Originals = [pocket2]
linearpattern2.Direction = (doc.Z_Axis, [""])
linearpattern2.Mode = "offset"
linearpattern2.Offset = 14
linearpattern2.Occurrences = 6
linearpattern2.Reversed = True
body.Tip = linearpattern2

# Sketch on XZ plane
sketch13 = doc.addObject("Sketcher::SketchObject", "Sketch012")
body.addObject(sketch13)
sketch13.AttachmentSupport = (doc.XZ_Plane, [""])
sketch13.MapMode = "FlatFace"
sketch13.AttachmentOffset = App.Placement(App.Vector(0, 0, -30.3), App.Rotation())
sketch13.addGeometry(Part.Circle(App.Vector(-33.5, 82, 0), App.Vector(0, 0, 1), 1.5), False)
sketch13.addConstraint([
    Sketcher.Constraint("Diameter", 0, 3.0),
    Sketcher.Constraint("DistanceY", -1, 1, 0, 3, 82.0),
    Sketcher.Constraint("DistanceX", 0, 3, -1, 1, 33.5),
])
pocket3 = doc.addObject("PartDesign::Pocket", "Pocket002")
body.addObject(pocket3)
pocket3.Profile = sketch13
pocket3.Length = 22
pocket3.Reversed = True
doc.recompute()

linearpattern3 = doc.addObject("PartDesign::LinearPattern", "LinearPattern002")
body.addObject(linearpattern3)
linearpattern3.Originals = [pocket3]
linearpattern3.Direction = (doc.Z_Axis, [""])
linearpattern3.Mode = "offset"
linearpattern3.Offset = 14
linearpattern3.Occurrences = 6
linearpattern3.Reversed = True
body.Tip = linearpattern3

# Sketch on XZ plane
sketch14 = doc.addObject("Sketcher::SketchObject", "Sketch013")
body.addObject(sketch14)
sketch14.AttachmentSupport = (doc.XZ_Plane, [""])
sketch14.MapMode = "FlatFace"
sketch14.AttachmentOffset = App.Placement(App.Vector(0, 0, -30.3), App.Rotation())
sketch14.addGeometry(Part.Circle(App.Vector(-4.5, 82, 0), App.Vector(0, 0, 1), 1.3), False)
sketch14.addConstraint([
    Sketcher.Constraint("Diameter", 0, 2.6),
    Sketcher.Constraint("DistanceY", -1, 1, 0, 3, 82.0),
    Sketcher.Constraint("DistanceX", 0, 3, -1, 1, 4.5),
])
pocket4 = doc.addObject("PartDesign::Pocket", "Pocket003")
body.addObject(pocket4)
pocket4.Profile = sketch14
pocket4.Length = 1.7
pocket4.Reversed = True
doc.recompute()

linearpattern4 = doc.addObject("PartDesign::LinearPattern", "LinearPattern003")
body.addObject(linearpattern4)
linearpattern4.Originals = [pocket4]
linearpattern4.Direction = (doc.Z_Axis, [""])
linearpattern4.Mode = "offset"
linearpattern4.Offset = 14
linearpattern4.Occurrences = 6
linearpattern4.Reversed = True
body.Tip = linearpattern4

# Sketch on YZ plane
sketch15 = doc.addObject("Sketcher::SketchObject", "Sketch014")
body.addObject(sketch15)
sketch15.AttachmentSupport = (doc.YZ_Plane, [""])
sketch15.MapMode = "FlatFace"
sketch15.AttachmentOffset = App.Placement(App.Vector(0, 0, -33.5), App.Rotation())
add_polygon(sketch15, [(30.3, 74.25), (30.3, 75.5), (25.7, 75.5), (25.7, 74.49), (30.06, 74.49)])  # lines 0-4
sketch15.addGeometry(Part.LineSegment(App.Vector(25.7, 75.5, 0), App.Vector(30.3, 75.5, 0)), True)  # axis
sketch15.addConstraint([
    Sketcher.Constraint("Vertical", 0),
    Sketcher.Constraint("Horizontal", 1),
    Sketcher.Constraint("Vertical", 2),
    Sketcher.Constraint("Horizontal", 3),
    Sketcher.Constraint("Horizontal", 5),
    Sketcher.Constraint("Coincident", 5, 1, 1, 2),
    Sketcher.Constraint("Vertical", 4, 2, 5, 2),
    Sketcher.Constraint("Angle", 4, Q("-45 deg")),
    Sketcher.Constraint("DistanceX", 1, 2, 1, 1, 4.6),
    Sketcher.Constraint("DistanceY", 0, 1, 0, 2, 1.25),
    Sketcher.Constraint("DistanceX", -1, 1, 0, 2, 30.3),
    Sketcher.Constraint("DistanceY", -1, 1, 0, 2, 75.5),
    Sketcher.Constraint("DistanceX", 3, 1, 3, 2, 4.3565),
])
groove8 = doc.addObject("PartDesign::Groove", "Groove007")
body.addObject(groove8)
groove8.Profile = sketch15
groove8.ReferenceAxis = (sketch15, ["Axis0"])
groove8.Angle = 360
doc.recompute()

linearpattern5 = doc.addObject("PartDesign::LinearPattern", "LinearPattern004")
body.addObject(linearpattern5)
linearpattern5.Originals = [groove8]
linearpattern5.Direction = (doc.Z_Axis, [""])
linearpattern5.Mode = "offset"
linearpattern5.Offset = 14
linearpattern5.Occurrences = 6
linearpattern5.Reversed = True
body.Tip = linearpattern5

# Sketch on YZ plane
sketch16 = doc.addObject("Sketcher::SketchObject", "Sketch015")
body.addObject(sketch16)
sketch16.AttachmentSupport = (doc.YZ_Plane, [""])
sketch16.MapMode = "FlatFace"
sketch16.AttachmentOffset = App.Placement(App.Vector(0, 0, -4), App.Rotation())
add_polygon(sketch16, [(30.3, 87.25), (30.3, 88.5), (25.7, 88.5), (25.7, 87.49), (30.06, 87.49)])  # lines 0-4
sketch16.addGeometry(Part.LineSegment(App.Vector(25.7, 88.5, 0), App.Vector(30.3, 88.5, 0)), True)  # axis
sketch16.addConstraint([
    Sketcher.Constraint("Vertical", 0),
    Sketcher.Constraint("Horizontal", 1),
    Sketcher.Constraint("Vertical", 2),
    Sketcher.Constraint("Horizontal", 3),
    Sketcher.Constraint("Horizontal", 5),
    Sketcher.Constraint("Coincident", 5, 1, 1, 2),
    Sketcher.Constraint("Vertical", 4, 2, 5, 2),
    Sketcher.Constraint("Angle", 4, Q("-45 deg")),
    Sketcher.Constraint("DistanceX", 1, 2, 1, 1, 4.6),
    Sketcher.Constraint("DistanceY", 0, 1, 0, 2, 1.25),
    Sketcher.Constraint("DistanceX", -1, 1, 0, 2, 30.3),
    Sketcher.Constraint("DistanceY", -1, 1, 0, 2, 88.5),
    Sketcher.Constraint("DistanceX", 3, 1, 3, 2, 4.3565),
])
groove9 = doc.addObject("PartDesign::Groove", "Groove008")
body.addObject(groove9)
groove9.Profile = sketch16
groove9.ReferenceAxis = (sketch16, ["Axis0"])
groove9.Angle = 360
doc.recompute()

linearpattern6 = doc.addObject("PartDesign::LinearPattern", "LinearPattern005")
body.addObject(linearpattern6)
linearpattern6.Originals = [groove9]
linearpattern6.Direction = (doc.Z_Axis, [""])
linearpattern6.Mode = "offset"
linearpattern6.Offset = 14
linearpattern6.Occurrences = 6
linearpattern6.Reversed = True
body.Tip = linearpattern6

doc.recompute()
